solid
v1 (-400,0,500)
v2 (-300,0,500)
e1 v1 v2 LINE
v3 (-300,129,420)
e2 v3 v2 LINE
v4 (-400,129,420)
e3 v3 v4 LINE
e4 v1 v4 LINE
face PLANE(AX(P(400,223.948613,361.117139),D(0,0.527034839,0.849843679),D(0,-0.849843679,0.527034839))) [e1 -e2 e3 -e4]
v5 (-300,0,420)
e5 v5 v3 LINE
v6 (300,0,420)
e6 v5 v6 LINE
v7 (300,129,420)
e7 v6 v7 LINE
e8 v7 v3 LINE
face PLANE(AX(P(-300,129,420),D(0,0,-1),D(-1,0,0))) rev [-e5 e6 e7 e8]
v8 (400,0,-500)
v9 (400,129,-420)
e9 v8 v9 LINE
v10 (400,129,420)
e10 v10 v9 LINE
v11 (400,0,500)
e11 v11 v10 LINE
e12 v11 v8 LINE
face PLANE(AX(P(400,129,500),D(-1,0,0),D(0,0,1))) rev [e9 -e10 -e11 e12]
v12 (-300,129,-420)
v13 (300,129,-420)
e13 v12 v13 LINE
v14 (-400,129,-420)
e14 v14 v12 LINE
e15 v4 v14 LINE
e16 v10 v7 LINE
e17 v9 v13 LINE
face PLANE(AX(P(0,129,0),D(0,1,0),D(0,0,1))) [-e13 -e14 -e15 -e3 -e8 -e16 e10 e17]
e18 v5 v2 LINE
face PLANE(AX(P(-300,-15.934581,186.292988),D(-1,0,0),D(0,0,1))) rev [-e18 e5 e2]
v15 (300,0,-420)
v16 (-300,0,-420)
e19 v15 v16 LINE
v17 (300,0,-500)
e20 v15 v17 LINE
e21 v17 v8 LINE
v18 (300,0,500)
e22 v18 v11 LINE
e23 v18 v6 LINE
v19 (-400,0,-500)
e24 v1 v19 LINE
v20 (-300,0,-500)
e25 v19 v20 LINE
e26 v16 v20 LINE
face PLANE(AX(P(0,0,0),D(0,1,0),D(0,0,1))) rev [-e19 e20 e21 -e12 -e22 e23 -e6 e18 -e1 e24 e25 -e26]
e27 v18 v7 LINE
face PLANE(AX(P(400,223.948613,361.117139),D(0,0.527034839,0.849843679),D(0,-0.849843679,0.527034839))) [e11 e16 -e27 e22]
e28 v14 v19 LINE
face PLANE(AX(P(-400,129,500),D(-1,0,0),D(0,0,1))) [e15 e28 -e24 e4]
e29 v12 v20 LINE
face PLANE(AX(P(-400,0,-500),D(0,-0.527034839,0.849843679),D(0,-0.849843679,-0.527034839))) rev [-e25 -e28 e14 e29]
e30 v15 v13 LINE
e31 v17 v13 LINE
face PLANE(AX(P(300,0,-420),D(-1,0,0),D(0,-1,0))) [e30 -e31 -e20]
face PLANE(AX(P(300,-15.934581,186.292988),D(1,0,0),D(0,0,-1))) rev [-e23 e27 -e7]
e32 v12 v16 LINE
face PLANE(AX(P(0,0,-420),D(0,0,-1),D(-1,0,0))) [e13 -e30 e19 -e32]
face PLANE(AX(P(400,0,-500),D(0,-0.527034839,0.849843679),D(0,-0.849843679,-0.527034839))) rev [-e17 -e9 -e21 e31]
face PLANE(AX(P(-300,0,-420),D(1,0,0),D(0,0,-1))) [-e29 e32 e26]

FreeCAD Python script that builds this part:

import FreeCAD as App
import Part
import Sketcher
from FreeCAD import Vector
Q = App.Units.Quantity


def add_polygon(sketch, points):
    """Adds a closed chain of lines whose ends are joined by coincident constraints."""
    first, n = sketch.GeometryCount, len(points)
    for a, b in zip(points, points[1:] + points[:1]):
        sketch.addGeometry(Part.LineSegment(App.Vector(*a, 0), App.Vector(*b, 0)), False)
    for i in range(n):
        sketch.addConstraint(Sketcher.Constraint("Coincident", first + i, 2, first + (i + 1) % n, 1))

doc = App.newDocument("Part")
body = doc.addObject("PartDesign::Body", "Body")

sketch1 = body.newObject("Sketcher::SketchObject", "Sketch")
sketch1.AttachmentSupport = (doc.getObject("XZ_Plane"), [""])
sketch1.MapMode = "FlatFace"
add_polygon(sketch1, [(-400, -500), (-400, 500), (400, 500), (400, -500)])
sketch1.addConstraint(Sketcher.Constraint("Vertical", 0))
sketch1.addConstraint(Sketcher.Constraint("Horizontal", 1))
sketch1.addConstraint(Sketcher.Constraint("Vertical", 2))
sketch1.addConstraint(Sketcher.Constraint("Horizontal", 3))
sketch1.addConstraint(Sketcher.Constraint("Symmetric", 0, 2, 2, 2, -1, 1))
sketch1.addConstraint(Sketcher.Constraint("DistanceX", 1, 1, 1, 2, Q("800 mm")))
sketch1.addConstraint(Sketcher.Constraint("DistanceY", 0, 1, 0, 2, Q("1000 mm")))
pad1 = body.newObject("PartDesign::Pad", "Pad")
pad1.Profile = sketch1
pad1.Length = 129
pad1.Reversed = True

sketch2 = body.newObject("Sketcher::SketchObject", "Sketch001")
sketch2.AttachmentSupport = (doc.getObject("YZ_Plane"), [""])
sketch2.MapMode = "FlatFace"
sketch2.AttachmentOffset = App.Placement(Vector(0, 0, -400), App.Rotation())
add_polygon(sketch2, [(129, 420), (0, 500), (129, 500)])
sketch2.addConstraint(Sketcher.Constraint("Horizontal", 1))
sketch2.addConstraint(Sketcher.Constraint("Vertical", 2))
sketch2.addConstraint(Sketcher.Constraint("PointOnObject", 0, 2, -2))
sketch2.addConstraint(Sketcher.Constraint("DistanceX", 1, 1, 1, 2, Q("129 mm")))
sketch2.addConstraint(Sketcher.Constraint("DistanceY", 2, 2, 2, 1, Q("80 mm")))
sketch2.addConstraint(Sketcher.Constraint("DistanceY", -1, 1, 0, 2, Q("500 mm")))
pocket1 = body.newObject("PartDesign::Pocket", "Pocket")
pocket1.Profile = sketch2
pocket1.Length = 800
pocket1.Reversed = True

sketch3 = body.newObject("Sketcher::SketchObject", "Sketch002")
sketch3.Placement = App.Placement(Vector(0, 223.948613, 361.117139), App.Rotation(Vector(1, 0, 0), Vector(0, 0.849843679, -0.527034839), Vector(0, 0.527034839, 0.849843679), "ZXY"))
add_polygon(sketch3, [(-300, -112), (-300, -264), (300, -264), (300, -112)])
sketch3.addConstraint(Sketcher.Constraint("Vertical", 0))
sketch3.addConstraint(Sketcher.Constraint("Horizontal", 1))
sketch3.addConstraint(Sketcher.Constraint("Vertical", 2))
sketch3.addConstraint(Sketcher.Constraint("Horizontal", 3))
sketch3.addConstraint(Sketcher.Constraint("DistanceX", 1, 1, 1, 2, Q("600 mm")))
sketch3.addConstraint(Sketcher.Constraint("DistanceX", 0, 2, -1, 1, Q("300 mm")))
sketch3.addConstraint(Sketcher.Constraint("DistanceY", 0, 2, 0, 1, Q("151.792622 mm")))
sketch3.addConstraint(Sketcher.Constraint("DistanceY", 2, 2, -1, 1, Q("111.724798 mm")))
pocket2 = body.newObject("PartDesign::Pocket", "Pocket001")
pocket2.Profile = sketch3
pocket2.Length = 275

sketch4 = body.newObject("Sketcher::SketchObject", "Sketch003")
sketch4.AttachmentSupport = (doc.getObject("XY_Plane"), [""])
sketch4.MapMode = "FlatFace"
sketch4.AttachmentOffset = App.Placement(Vector(0, 0, -500), App.Rotation())
add_polygon(sketch4, [(300, 129), (300, 0), (-300, 0), (-300, 129)])
sketch4.addConstraint(Sketcher.Constraint("Vertical", 0))
sketch4.addConstraint(Sketcher.Constraint("Horizontal", 1))
sketch4.addConstraint(Sketcher.Constraint("Vertical", 2))
sketch4.addConstraint(Sketcher.Constraint("Horizontal", 3))
sketch4.addConstraint(Sketcher.Constraint("Symmetric", 0, 2, 1, 2, -1, 1))
sketch4.addConstraint(Sketcher.Constraint("DistanceX", 1, 2, 1, 1, Q("600 mm")))
sketch4.addConstraint(Sketcher.Constraint("DistanceY", 0, 2, 0, 1, Q("129 mm")))
pocket3 = body.newObject("PartDesign::Pocket", "Pocket002")
pocket3.Profile = sketch4
pocket3.Length = 80
pocket3.Reversed = True

sketch5 = body.newObject("Sketcher::SketchObject", "Sketch004")
sketch5.AttachmentSupport = (doc.getObject("YZ_Plane"), [""])
sketch5.MapMode = "FlatFace"
sketch5.AttachmentOffset = App.Placement(Vector(0, 0, -300), App.Rotation())
add_polygon(sketch5, [(129, -500), (129, -420), (0, -500)])
sketch5.addConstraint(Sketcher.Constraint("Vertical", 0))
sketch5.addConstraint(Sketcher.Constraint("Horizontal", 2))
sketch5.addConstraint(Sketcher.Constraint("PointOnObject", 1, 2, -2))
sketch5.addConstraint(Sketcher.Constraint("DistanceX", 2, 1, 2, 2, Q("129 mm")))
sketch5.addConstraint(Sketcher.Constraint("DistanceY", 0, 1, 0, 2, Q("80 mm")))
sketch5.addConstraint(Sketcher.Constraint("DistanceY", 0, 2, -1, 1, Q("420 mm")))
pocket4 = body.newObject("PartDesign::Pocket", "Pocket003")
pocket4.Profile = sketch5
pocket4.Length = 100

sketch6 = body.newObject("Sketcher::SketchObject", "Sketch005")
sketch6.AttachmentSupport = (doc.getObject("YZ_Plane"), [""])
sketch6.MapMode = "FlatFace"
sketch6.AttachmentOffset = App.Placement(Vector(0, 0, 300), App.Rotation())
add_polygon(sketch6, [(129, -420), (129, -500), (0, -500)])
sketch6.addConstraint(Sketcher.Constraint("Vertical", 0))
sketch6.addConstraint(Sketcher.Constraint("Horizontal", 1))
sketch6.addConstraint(Sketcher.Constraint("PointOnObject", 1, 2, -2))
sketch6.addConstraint(Sketcher.Constraint("DistanceX", 1, 2, 1, 1, Q("129 mm")))
sketch6.addConstraint(Sketcher.Constraint("DistanceY", 0, 2, 0, 1, Q("80 mm")))
sketch6.addConstraint(Sketcher.Constraint("DistanceY", 0, 2, -1, 1, Q("500 mm")))
pocket5 = body.newObject("PartDesign::Pocket", "Pocket004")
pocket5.Profile = sketch6
pocket5.Length = 100
pocket5.Reversed = True

sketch7 = body.newObject("Sketcher::SketchObject", "Sketch006")
sketch7.AttachmentSupport = (doc.getObject("YZ_Plane"), [""])
sketch7.MapMode = "FlatFace"
sketch7.AttachmentOffset = App.Placement(Vector(0, 0, 300), App.Rotation())
add_polygon(sketch7, [(0, 420), (129, 420), (0, 212)])
sketch7.addConstraint(Sketcher.Constraint("Horizontal", 0))
sketch7.addConstraint(Sketcher.Constraint("Vertical", 2))
sketch7.addConstraint(Sketcher.Constraint("PointOnObject", 1, 2, -2))
sketch7.addConstraint(Sketcher.Constraint("DistanceX", 0, 1, 0, 2, Q("129 mm")))
sketch7.addConstraint(Sketcher.Constraint("DistanceY", -1, 1, 0, 2, Q("420 mm")))
sketch7.addConstraint(Sketcher.Constraint("DistanceY", 2, 1, 2, 2, Q("208.0125 mm")))
pad2 = body.newObject("PartDesign::Pad", "Pad001")
pad2.Profile = sketch7
pad2.Length = 600
pad2.Reversed = True

doc.recompute()
